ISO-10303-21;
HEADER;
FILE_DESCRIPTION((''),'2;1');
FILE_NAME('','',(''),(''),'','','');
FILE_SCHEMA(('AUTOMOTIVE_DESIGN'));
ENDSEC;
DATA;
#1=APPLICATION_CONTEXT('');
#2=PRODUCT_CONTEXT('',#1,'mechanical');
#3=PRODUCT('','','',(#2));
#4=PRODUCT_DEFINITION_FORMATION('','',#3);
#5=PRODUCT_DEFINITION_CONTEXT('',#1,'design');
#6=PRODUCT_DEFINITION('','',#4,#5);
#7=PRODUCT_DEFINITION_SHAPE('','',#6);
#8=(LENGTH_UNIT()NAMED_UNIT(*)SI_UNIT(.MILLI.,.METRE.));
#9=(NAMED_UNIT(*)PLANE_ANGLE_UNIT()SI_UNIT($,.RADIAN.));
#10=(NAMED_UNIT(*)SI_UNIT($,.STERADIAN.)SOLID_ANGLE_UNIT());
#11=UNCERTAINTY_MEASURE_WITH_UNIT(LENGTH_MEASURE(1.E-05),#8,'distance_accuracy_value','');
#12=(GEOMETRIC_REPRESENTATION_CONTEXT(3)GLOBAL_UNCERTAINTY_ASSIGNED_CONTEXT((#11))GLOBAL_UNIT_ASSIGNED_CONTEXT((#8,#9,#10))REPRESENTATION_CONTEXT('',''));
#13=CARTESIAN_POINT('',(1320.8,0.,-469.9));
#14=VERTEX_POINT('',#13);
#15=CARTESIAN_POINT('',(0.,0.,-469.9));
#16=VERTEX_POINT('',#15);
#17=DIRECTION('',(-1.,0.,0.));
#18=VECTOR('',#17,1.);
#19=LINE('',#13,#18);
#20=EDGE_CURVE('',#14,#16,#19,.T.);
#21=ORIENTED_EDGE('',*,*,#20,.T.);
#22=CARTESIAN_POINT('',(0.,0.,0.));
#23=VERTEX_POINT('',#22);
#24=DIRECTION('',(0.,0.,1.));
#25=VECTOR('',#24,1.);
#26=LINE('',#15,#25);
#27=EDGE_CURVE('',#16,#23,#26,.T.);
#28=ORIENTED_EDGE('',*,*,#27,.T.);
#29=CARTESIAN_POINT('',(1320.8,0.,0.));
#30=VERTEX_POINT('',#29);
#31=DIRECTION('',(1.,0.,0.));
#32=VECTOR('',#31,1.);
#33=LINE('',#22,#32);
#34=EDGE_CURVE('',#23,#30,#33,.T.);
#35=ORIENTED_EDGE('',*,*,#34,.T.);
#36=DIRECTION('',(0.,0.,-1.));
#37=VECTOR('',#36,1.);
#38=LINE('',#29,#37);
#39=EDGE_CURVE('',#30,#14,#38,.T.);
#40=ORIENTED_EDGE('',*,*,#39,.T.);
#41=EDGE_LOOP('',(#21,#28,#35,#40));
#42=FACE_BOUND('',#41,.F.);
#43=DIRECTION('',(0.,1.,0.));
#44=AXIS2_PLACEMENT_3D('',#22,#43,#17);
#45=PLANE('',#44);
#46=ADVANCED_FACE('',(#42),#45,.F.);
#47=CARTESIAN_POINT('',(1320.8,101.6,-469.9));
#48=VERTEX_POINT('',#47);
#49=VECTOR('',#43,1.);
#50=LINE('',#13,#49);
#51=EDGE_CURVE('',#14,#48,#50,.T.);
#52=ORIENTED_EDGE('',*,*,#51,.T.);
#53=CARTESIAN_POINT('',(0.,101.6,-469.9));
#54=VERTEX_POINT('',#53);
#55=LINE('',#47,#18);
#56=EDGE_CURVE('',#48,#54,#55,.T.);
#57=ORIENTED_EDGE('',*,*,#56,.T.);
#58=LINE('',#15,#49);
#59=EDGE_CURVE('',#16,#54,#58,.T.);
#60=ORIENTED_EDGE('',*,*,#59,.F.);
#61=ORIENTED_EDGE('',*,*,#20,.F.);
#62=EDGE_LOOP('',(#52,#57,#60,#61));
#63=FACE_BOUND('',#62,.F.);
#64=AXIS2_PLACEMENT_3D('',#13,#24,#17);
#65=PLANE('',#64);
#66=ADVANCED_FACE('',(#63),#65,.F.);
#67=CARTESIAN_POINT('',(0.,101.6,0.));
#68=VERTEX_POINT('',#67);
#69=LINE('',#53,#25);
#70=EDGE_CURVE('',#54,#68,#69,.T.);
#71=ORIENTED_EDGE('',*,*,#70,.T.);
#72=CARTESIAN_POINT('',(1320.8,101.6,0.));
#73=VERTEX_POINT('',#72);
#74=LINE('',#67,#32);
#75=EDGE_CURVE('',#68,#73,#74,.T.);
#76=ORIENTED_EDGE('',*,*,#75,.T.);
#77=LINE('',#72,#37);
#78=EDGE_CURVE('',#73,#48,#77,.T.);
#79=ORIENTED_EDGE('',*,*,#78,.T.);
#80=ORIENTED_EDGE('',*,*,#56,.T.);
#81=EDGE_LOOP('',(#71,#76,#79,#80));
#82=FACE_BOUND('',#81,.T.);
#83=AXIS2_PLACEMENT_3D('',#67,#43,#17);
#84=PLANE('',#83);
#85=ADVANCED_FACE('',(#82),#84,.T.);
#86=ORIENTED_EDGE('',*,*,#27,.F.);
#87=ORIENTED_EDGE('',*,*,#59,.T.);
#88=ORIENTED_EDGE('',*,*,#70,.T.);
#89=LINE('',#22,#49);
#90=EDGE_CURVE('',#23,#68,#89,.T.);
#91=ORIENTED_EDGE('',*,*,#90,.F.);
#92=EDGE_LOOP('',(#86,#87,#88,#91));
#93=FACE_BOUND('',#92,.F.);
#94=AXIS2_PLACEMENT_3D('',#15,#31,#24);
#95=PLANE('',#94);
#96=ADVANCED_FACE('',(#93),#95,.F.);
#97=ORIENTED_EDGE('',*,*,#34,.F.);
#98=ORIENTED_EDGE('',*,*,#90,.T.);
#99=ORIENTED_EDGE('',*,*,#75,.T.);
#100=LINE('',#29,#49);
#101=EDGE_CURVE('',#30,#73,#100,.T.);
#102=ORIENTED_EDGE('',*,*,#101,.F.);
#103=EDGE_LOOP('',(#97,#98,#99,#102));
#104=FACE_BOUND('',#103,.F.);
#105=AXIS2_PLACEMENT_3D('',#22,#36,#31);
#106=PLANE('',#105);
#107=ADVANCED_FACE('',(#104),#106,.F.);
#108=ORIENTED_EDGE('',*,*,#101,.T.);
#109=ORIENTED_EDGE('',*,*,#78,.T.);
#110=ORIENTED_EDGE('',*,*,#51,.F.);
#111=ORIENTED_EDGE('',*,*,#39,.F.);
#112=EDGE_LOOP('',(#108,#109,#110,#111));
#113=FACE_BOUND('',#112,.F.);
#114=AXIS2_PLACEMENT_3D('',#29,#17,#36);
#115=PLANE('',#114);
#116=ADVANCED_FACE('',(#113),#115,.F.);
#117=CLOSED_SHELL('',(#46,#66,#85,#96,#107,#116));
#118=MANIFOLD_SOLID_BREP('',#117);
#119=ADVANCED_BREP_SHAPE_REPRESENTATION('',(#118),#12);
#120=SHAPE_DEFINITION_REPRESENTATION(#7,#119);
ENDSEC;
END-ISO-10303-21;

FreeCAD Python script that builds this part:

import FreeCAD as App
import Part
import Sketcher
from FreeCAD import Vector
Q = App.Units.Quantity


def add_polygon(sketch, points):
    """Adds a closed chain of lines whose ends are joined by coincident constraints."""
    first, n = sketch.GeometryCount, len(points)
    for a, b in zip(points, points[1:] + points[:1]):
        sketch.addGeometry(Part.LineSegment(App.Vector(*a, 0), App.Vector(*b, 0)), False)
    for i in range(n):
        sketch.addConstraint(Sketcher.Constraint("Coincident", first + i, 2, first + (i + 1) % n, 1))

doc = App.newDocument("Part")
body = doc.addObject("PartDesign::Body", "Body")

sketch1 = body.newObject("Sketcher::SketchObject", "Sketch")
sketch1.AttachmentSupport = (doc.getObject("XZ_Plane"), [""])
sketch1.MapMode = "FlatFace"
add_polygon(sketch1, [(0, -470), (0, 0), (1321, 0), (1321, -470)])
sketch1.addConstraint([
    Sketcher.Constraint("Vertical", 0),
    Sketcher.Constraint("Horizontal", 1),
    Sketcher.Constraint("Vertical", 2),
    Sketcher.Constraint("Horizontal", 3),
    Sketcher.Constraint("Coincident", 0, 2, -1, 1),
    Sketcher.Constraint("DistanceX", 1, 1, 1, 2, Q("52 in")),
    Sketcher.Constraint("DistanceY", 0, 1, 0, 2, Q("18.5 in")),
])
pad1 = body.newObject("PartDesign::Pad", "Pad")
pad1.Profile = sketch1
pad1.Length = Q("4 in")
pad1.Reversed = True

doc.recompute()
